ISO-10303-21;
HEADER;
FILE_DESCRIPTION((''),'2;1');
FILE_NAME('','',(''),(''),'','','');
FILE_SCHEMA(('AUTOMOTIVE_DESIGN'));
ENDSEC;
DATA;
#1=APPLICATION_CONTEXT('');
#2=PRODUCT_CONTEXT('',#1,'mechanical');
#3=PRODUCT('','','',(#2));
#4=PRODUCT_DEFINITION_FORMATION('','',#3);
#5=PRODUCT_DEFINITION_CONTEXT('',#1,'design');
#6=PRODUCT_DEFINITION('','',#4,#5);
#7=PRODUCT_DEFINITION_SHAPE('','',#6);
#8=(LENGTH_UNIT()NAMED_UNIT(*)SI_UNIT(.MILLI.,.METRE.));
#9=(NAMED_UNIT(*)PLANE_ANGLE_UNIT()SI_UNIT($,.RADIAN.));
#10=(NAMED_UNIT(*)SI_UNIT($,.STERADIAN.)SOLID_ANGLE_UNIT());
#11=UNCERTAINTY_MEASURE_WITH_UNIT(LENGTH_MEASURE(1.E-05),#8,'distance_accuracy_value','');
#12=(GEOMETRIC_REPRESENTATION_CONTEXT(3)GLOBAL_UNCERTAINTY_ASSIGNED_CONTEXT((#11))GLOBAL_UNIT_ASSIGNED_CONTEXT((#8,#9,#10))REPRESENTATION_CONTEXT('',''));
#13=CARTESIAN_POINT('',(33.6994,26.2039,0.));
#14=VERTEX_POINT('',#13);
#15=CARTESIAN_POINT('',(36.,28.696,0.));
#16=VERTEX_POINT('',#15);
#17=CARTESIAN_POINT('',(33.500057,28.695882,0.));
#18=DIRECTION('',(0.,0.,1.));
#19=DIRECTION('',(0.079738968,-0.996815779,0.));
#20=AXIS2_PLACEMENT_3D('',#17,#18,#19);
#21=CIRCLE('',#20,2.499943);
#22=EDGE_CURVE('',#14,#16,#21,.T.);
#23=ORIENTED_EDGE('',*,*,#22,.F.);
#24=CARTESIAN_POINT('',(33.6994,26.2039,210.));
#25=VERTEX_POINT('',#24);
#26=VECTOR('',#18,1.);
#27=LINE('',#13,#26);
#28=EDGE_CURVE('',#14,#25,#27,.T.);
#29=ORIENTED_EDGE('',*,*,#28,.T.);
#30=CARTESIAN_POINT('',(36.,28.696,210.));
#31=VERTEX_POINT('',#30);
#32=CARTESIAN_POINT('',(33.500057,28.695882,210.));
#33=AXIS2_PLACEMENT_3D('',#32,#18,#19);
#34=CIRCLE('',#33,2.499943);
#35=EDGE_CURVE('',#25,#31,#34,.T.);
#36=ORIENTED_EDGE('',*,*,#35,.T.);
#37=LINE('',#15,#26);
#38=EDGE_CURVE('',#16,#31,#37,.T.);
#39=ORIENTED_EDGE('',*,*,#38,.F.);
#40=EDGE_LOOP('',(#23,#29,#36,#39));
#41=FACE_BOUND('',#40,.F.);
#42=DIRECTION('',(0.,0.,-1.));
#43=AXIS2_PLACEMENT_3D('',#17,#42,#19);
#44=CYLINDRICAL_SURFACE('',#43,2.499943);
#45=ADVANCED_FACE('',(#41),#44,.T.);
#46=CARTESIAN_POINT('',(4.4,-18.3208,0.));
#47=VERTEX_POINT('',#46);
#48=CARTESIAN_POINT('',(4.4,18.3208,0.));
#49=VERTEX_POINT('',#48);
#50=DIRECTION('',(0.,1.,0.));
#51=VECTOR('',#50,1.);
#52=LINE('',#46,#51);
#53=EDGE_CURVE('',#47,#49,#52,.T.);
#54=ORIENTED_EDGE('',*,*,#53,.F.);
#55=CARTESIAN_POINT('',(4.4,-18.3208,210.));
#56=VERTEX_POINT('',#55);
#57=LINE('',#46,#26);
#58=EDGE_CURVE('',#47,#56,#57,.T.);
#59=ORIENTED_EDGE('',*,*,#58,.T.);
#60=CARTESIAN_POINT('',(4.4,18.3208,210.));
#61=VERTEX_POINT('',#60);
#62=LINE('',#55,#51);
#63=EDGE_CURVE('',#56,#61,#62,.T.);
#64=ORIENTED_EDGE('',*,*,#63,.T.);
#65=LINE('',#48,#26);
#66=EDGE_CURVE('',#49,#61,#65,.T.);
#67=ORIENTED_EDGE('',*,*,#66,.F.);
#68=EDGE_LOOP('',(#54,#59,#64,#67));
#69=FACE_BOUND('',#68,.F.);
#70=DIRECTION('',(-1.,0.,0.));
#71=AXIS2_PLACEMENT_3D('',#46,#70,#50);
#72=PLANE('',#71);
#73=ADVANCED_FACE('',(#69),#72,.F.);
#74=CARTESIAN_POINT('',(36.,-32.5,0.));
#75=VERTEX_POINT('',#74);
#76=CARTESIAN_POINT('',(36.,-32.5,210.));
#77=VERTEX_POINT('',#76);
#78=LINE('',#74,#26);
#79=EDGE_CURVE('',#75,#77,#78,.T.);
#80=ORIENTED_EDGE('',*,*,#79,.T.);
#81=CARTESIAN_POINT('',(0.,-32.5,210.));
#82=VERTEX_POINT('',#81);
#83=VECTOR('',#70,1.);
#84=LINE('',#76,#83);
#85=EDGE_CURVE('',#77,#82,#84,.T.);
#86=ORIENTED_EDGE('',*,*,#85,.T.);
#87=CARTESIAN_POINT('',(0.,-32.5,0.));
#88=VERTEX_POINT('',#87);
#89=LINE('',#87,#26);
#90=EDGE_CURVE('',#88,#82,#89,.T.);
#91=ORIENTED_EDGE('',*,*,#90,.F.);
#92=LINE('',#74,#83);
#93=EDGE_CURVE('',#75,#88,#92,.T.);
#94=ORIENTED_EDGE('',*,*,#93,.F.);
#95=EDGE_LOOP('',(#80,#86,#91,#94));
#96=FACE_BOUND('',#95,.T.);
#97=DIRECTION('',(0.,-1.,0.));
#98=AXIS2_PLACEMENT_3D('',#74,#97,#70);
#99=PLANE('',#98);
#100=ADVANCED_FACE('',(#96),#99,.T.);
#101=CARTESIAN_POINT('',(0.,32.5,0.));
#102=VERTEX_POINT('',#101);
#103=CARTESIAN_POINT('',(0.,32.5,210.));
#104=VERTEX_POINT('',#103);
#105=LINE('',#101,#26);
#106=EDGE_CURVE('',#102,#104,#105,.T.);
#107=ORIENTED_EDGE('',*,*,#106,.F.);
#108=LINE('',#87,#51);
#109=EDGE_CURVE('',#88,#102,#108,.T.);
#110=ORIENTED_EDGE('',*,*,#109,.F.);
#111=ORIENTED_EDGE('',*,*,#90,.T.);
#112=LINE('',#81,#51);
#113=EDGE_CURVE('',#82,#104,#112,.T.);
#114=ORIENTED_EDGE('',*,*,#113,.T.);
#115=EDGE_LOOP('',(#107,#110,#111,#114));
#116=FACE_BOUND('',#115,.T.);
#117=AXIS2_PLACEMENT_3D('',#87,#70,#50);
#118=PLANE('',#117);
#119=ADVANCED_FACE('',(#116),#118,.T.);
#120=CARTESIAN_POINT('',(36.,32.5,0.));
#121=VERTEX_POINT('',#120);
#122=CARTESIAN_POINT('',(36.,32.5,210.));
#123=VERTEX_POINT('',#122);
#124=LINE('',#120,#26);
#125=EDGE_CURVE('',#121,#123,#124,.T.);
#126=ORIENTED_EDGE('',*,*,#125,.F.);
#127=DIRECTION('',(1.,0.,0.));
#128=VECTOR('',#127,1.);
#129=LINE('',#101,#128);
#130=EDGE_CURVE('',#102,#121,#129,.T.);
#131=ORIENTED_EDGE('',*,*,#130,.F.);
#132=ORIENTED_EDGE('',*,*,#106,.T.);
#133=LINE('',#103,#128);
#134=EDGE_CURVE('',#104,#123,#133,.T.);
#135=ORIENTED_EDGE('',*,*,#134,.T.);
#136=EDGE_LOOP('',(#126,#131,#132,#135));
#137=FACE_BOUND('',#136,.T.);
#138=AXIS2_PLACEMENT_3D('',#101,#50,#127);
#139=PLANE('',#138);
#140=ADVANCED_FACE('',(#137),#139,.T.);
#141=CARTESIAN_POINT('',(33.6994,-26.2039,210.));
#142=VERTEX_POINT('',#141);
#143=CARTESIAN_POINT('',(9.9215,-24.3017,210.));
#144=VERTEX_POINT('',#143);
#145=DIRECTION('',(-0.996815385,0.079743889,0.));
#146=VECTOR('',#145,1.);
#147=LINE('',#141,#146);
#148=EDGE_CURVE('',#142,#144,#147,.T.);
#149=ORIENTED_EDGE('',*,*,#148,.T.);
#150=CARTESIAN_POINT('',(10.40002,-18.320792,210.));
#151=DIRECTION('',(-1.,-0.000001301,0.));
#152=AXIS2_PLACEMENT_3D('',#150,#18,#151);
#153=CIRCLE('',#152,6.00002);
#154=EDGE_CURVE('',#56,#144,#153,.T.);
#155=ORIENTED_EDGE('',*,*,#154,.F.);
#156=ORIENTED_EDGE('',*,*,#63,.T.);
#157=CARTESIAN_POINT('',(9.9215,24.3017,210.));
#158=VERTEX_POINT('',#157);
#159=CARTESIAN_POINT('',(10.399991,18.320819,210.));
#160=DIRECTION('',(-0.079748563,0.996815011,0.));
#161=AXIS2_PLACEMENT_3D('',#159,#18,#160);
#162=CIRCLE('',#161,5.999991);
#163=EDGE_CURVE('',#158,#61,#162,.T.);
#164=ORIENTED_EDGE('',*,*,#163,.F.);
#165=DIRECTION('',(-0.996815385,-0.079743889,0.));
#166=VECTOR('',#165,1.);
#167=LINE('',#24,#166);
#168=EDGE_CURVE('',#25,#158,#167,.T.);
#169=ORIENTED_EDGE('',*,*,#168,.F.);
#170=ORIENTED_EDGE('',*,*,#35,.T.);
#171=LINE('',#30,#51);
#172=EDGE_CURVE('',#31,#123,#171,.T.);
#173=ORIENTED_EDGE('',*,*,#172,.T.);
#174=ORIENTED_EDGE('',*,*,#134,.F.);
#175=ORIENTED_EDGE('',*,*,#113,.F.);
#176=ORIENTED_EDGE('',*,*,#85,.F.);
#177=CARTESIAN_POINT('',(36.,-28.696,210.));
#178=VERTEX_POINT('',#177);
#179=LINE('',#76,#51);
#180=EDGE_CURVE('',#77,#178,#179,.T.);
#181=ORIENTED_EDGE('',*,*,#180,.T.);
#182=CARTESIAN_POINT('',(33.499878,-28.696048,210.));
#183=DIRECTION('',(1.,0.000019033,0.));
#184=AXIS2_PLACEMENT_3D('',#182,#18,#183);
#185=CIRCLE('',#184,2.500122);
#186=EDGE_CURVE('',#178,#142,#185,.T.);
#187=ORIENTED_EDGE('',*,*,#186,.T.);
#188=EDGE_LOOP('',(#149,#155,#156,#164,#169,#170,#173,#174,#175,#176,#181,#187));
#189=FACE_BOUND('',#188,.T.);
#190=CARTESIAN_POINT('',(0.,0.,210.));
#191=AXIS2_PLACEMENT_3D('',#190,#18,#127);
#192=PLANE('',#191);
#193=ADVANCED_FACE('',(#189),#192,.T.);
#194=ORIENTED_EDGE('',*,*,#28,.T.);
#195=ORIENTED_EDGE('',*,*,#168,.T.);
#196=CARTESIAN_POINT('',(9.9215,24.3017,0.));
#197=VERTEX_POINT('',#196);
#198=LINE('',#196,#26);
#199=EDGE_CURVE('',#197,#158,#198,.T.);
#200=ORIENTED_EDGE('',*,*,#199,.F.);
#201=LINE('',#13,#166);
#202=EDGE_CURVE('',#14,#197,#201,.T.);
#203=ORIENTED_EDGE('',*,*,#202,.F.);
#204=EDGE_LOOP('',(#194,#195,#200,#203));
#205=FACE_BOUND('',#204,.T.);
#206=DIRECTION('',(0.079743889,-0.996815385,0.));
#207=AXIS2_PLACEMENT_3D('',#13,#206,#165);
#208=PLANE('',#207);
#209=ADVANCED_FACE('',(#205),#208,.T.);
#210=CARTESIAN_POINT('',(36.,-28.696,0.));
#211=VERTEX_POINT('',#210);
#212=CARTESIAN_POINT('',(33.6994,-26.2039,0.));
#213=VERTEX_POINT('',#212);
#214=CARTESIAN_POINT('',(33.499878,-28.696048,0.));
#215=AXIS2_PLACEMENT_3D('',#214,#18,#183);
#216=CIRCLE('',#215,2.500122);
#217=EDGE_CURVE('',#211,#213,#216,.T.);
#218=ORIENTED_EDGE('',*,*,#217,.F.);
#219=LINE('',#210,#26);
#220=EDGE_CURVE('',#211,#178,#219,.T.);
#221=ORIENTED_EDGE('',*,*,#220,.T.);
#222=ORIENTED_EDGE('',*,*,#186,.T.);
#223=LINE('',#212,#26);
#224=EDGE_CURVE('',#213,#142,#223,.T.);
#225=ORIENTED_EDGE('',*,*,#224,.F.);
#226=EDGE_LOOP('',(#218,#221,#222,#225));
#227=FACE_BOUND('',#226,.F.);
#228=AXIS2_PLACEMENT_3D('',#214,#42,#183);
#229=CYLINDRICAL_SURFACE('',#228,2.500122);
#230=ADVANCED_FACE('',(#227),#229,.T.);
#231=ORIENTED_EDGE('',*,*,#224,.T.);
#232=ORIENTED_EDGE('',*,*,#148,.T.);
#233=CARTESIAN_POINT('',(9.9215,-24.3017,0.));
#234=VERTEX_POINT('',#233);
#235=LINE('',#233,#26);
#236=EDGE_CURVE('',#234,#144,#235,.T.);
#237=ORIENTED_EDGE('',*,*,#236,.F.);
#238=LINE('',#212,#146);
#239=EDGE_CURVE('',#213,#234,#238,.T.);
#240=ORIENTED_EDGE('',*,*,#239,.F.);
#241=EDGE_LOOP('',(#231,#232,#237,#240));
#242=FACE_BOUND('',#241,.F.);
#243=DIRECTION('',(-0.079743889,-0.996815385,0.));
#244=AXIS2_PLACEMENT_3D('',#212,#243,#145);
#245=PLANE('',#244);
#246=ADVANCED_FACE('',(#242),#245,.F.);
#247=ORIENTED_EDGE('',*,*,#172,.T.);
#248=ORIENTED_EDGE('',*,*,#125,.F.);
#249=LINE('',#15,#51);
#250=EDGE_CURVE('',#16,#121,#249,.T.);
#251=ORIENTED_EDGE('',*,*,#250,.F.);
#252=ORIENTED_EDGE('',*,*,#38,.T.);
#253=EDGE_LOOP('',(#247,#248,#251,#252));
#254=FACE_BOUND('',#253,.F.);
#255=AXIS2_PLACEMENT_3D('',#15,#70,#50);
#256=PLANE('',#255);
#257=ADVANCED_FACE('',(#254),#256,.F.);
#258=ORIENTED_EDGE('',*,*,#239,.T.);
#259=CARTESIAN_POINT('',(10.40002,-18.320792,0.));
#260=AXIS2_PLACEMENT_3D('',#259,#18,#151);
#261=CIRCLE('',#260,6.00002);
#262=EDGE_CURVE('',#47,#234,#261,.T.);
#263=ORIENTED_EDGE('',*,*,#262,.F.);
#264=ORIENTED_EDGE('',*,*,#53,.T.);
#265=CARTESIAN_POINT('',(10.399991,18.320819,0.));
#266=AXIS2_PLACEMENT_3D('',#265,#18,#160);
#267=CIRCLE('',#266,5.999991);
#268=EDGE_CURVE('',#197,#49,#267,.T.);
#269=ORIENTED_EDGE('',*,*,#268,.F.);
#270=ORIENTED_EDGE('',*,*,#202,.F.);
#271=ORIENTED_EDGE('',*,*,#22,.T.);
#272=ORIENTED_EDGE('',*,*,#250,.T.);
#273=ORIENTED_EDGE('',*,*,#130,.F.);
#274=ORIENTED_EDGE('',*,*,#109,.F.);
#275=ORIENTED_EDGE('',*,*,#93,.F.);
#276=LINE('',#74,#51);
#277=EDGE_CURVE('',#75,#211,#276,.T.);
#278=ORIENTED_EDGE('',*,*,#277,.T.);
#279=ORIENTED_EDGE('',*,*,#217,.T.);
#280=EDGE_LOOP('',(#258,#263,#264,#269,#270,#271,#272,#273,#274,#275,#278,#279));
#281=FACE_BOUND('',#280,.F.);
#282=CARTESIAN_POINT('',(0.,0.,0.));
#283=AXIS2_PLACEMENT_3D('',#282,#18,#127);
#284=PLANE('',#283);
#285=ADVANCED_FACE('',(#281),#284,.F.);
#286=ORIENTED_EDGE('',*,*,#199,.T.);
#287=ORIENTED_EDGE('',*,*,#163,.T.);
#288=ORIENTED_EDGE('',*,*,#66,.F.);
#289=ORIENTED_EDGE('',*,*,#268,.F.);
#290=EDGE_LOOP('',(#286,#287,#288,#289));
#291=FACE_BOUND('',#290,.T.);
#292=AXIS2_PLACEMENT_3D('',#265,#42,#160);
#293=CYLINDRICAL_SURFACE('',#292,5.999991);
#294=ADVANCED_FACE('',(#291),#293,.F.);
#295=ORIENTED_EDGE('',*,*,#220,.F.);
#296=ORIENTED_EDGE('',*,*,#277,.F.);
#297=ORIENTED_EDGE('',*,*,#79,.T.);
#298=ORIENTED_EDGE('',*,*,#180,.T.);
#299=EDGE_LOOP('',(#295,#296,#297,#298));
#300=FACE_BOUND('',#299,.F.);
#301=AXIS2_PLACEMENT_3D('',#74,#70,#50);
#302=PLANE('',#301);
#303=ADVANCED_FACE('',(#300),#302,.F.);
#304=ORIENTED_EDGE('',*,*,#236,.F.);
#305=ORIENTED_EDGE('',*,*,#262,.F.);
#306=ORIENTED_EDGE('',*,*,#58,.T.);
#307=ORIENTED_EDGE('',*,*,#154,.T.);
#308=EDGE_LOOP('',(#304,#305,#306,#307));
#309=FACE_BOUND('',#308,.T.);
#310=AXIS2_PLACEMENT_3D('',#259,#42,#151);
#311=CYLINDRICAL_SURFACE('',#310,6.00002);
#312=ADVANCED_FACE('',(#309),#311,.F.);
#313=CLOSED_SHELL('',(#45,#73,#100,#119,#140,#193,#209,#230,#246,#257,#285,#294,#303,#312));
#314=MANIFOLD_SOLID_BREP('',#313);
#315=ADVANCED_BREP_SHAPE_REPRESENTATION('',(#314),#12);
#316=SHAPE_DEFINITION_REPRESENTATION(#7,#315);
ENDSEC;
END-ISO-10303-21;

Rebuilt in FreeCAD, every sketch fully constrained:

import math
import FreeCAD as App
import Part
import Sketcher
Q = App.Units.Quantity

doc = App.newDocument("Part")
params = doc.addObject("Spreadsheet::Sheet", "Params")
for row, (alias, value) in enumerate([
    ("sketch1_radius", "6 mm"),
    ("sketch1_radius2", "2.5 mm"),
    ("sketch1_width", "36 mm"),
    ("sketch1_height", "65 mm"),
    ("pad1_length", "210 mm"),
], start=1):
    params.set(f"A{row}", alias)
    params.set(f"B{row}", "=" + value)
    params.setAlias(f"B{row}", alias)

body = doc.addObject("PartDesign::Body", "Body")

# Sketch on XY plane
sketch1 = body.newObject("Sketcher::SketchObject", "Sketch")
sketch1.AttachmentSupport = (doc.getObject("XY_Plane"), [""])
sketch1.MapMode = "FlatFace"
sketch1.addGeometry([
    Part.LineSegment(App.Vector(0, -32.5, 0), App.Vector(36, -32.5, 0)),  # 0
    Part.LineSegment(App.Vector(36, -32.5, 0), App.Vector(36, -28.7, 0)),  # 1
    Part.ArcOfCircle(Part.Circle(App.Vector(33.5, -28.7, 0), App.Vector(0, 0, 1), 2.5), math.radians(0), math.radians(85)),  # 2
    Part.LineSegment(App.Vector(33.7, -26.2, 0), App.Vector(9.9, -24.3, 0)),  # 3
    Part.ArcOfCircle(Part.Circle(App.Vector(10.4, -18.3, 0), App.Vector(0, 0, 1), 6), math.radians(180), math.radians(265)),  # 4
    Part.LineSegment(App.Vector(4.4, -18.3, 0), App.Vector(4.4, 18.3, 0)),  # 5
    Part.ArcOfCircle(Part.Circle(App.Vector(10.4, 18.3, 0), App.Vector(0, 0, 1), 6), math.radians(95), math.radians(180)),  # 6
    Part.LineSegment(App.Vector(9.9, 24.3, 0), App.Vector(33.7, 26.2, 0)),  # 7
    Part.ArcOfCircle(Part.Circle(App.Vector(33.5, 28.7, 0), App.Vector(0, 0, 1), 2.5), math.radians(-85), math.radians(0)),  # 8
    Part.LineSegment(App.Vector(36, 28.7, 0), App.Vector(36, 32.5, 0)),  # 9
    Part.LineSegment(App.Vector(36, 32.5, 0), App.Vector(0, 32.5, 0)),  # 10
    Part.LineSegment(App.Vector(0, 32.5, 0), App.Vector(0, -32.5, 0)),  # 11
], False)
sketch1.addConstraint([
    Sketcher.Constraint("Coincident", 0, 2, 1, 1),
    Sketcher.Constraint("Tangent", 1, 2, 2, 1),
    Sketcher.Constraint("Tangent", 2, 2, 3, 1),
    Sketcher.Constraint("Tangent", 3, 2, 4, 2),
    Sketcher.Constraint("Tangent", 4, 1, 5, 1),
    Sketcher.Constraint("Tangent", 5, 2, 6, 2),
    Sketcher.Constraint("Tangent", 6, 1, 7, 1),
    Sketcher.Constraint("Tangent", 7, 2, 8, 1),
    Sketcher.Constraint("Tangent", 8, 2, 9, 1),
    Sketcher.Constraint("Coincident", 9, 2, 10, 1),
    Sketcher.Constraint("Coincident", 10, 2, 11, 1),
    Sketcher.Constraint("Coincident", 11, 2, 0, 1),
    Sketcher.Constraint("Horizontal", 0),
    Sketcher.Constraint("Vertical", 1),
    Sketcher.Constraint("Vertical", 5),
    Sketcher.Constraint("Vertical", 9),
    Sketcher.Constraint("Horizontal", 10),
    Sketcher.Constraint("Vertical", 11),
    Sketcher.Constraint("Equal", 4, 6),
    Sketcher.Constraint("Equal", 2, 8),
    Sketcher.Constraint("Symmetric", 10, 2, 11, 2, -1, 1),
    Sketcher.Constraint("Symmetric", 2, 3, 8, 3, -1),
    Sketcher.Constraint("Vertical", 3, 2, 6, 1),
    Sketcher.Constraint("Radius", 4, Q("6 mm")),
    Sketcher.Constraint("Radius", 2, Q("2.5 mm")),
    Sketcher.Constraint("DistanceX", 0, 1, 0, 2, Q("36 mm")),
    Sketcher.Constraint("DistanceY", 11, 2, 11, 1, Q("65 mm")),
    Sketcher.Constraint("DistanceX", -1, 1, 4, 1, Q("4.4 mm")),
    Sketcher.Constraint("DistanceY", 1, 1, 1, 2, Q("3.804 mm")),
    Sketcher.Constraint("DistanceY", 5, 1, 5, 2, Q("36.6416 mm")),
])
sketch1.setExpression("Constraints[23]", "Params.sketch1_radius")
sketch1.setExpression("Constraints[24]", "Params.sketch1_radius2")
sketch1.setExpression("Constraints[25]", "Params.sketch1_width")
sketch1.setExpression("Constraints[26]", "Params.sketch1_height")
pad1 = body.newObject("PartDesign::Pad", "Pad")
pad1.Profile = sketch1
pad1.setExpression("Length", "Params.pad1_length")

doc.recompute()
